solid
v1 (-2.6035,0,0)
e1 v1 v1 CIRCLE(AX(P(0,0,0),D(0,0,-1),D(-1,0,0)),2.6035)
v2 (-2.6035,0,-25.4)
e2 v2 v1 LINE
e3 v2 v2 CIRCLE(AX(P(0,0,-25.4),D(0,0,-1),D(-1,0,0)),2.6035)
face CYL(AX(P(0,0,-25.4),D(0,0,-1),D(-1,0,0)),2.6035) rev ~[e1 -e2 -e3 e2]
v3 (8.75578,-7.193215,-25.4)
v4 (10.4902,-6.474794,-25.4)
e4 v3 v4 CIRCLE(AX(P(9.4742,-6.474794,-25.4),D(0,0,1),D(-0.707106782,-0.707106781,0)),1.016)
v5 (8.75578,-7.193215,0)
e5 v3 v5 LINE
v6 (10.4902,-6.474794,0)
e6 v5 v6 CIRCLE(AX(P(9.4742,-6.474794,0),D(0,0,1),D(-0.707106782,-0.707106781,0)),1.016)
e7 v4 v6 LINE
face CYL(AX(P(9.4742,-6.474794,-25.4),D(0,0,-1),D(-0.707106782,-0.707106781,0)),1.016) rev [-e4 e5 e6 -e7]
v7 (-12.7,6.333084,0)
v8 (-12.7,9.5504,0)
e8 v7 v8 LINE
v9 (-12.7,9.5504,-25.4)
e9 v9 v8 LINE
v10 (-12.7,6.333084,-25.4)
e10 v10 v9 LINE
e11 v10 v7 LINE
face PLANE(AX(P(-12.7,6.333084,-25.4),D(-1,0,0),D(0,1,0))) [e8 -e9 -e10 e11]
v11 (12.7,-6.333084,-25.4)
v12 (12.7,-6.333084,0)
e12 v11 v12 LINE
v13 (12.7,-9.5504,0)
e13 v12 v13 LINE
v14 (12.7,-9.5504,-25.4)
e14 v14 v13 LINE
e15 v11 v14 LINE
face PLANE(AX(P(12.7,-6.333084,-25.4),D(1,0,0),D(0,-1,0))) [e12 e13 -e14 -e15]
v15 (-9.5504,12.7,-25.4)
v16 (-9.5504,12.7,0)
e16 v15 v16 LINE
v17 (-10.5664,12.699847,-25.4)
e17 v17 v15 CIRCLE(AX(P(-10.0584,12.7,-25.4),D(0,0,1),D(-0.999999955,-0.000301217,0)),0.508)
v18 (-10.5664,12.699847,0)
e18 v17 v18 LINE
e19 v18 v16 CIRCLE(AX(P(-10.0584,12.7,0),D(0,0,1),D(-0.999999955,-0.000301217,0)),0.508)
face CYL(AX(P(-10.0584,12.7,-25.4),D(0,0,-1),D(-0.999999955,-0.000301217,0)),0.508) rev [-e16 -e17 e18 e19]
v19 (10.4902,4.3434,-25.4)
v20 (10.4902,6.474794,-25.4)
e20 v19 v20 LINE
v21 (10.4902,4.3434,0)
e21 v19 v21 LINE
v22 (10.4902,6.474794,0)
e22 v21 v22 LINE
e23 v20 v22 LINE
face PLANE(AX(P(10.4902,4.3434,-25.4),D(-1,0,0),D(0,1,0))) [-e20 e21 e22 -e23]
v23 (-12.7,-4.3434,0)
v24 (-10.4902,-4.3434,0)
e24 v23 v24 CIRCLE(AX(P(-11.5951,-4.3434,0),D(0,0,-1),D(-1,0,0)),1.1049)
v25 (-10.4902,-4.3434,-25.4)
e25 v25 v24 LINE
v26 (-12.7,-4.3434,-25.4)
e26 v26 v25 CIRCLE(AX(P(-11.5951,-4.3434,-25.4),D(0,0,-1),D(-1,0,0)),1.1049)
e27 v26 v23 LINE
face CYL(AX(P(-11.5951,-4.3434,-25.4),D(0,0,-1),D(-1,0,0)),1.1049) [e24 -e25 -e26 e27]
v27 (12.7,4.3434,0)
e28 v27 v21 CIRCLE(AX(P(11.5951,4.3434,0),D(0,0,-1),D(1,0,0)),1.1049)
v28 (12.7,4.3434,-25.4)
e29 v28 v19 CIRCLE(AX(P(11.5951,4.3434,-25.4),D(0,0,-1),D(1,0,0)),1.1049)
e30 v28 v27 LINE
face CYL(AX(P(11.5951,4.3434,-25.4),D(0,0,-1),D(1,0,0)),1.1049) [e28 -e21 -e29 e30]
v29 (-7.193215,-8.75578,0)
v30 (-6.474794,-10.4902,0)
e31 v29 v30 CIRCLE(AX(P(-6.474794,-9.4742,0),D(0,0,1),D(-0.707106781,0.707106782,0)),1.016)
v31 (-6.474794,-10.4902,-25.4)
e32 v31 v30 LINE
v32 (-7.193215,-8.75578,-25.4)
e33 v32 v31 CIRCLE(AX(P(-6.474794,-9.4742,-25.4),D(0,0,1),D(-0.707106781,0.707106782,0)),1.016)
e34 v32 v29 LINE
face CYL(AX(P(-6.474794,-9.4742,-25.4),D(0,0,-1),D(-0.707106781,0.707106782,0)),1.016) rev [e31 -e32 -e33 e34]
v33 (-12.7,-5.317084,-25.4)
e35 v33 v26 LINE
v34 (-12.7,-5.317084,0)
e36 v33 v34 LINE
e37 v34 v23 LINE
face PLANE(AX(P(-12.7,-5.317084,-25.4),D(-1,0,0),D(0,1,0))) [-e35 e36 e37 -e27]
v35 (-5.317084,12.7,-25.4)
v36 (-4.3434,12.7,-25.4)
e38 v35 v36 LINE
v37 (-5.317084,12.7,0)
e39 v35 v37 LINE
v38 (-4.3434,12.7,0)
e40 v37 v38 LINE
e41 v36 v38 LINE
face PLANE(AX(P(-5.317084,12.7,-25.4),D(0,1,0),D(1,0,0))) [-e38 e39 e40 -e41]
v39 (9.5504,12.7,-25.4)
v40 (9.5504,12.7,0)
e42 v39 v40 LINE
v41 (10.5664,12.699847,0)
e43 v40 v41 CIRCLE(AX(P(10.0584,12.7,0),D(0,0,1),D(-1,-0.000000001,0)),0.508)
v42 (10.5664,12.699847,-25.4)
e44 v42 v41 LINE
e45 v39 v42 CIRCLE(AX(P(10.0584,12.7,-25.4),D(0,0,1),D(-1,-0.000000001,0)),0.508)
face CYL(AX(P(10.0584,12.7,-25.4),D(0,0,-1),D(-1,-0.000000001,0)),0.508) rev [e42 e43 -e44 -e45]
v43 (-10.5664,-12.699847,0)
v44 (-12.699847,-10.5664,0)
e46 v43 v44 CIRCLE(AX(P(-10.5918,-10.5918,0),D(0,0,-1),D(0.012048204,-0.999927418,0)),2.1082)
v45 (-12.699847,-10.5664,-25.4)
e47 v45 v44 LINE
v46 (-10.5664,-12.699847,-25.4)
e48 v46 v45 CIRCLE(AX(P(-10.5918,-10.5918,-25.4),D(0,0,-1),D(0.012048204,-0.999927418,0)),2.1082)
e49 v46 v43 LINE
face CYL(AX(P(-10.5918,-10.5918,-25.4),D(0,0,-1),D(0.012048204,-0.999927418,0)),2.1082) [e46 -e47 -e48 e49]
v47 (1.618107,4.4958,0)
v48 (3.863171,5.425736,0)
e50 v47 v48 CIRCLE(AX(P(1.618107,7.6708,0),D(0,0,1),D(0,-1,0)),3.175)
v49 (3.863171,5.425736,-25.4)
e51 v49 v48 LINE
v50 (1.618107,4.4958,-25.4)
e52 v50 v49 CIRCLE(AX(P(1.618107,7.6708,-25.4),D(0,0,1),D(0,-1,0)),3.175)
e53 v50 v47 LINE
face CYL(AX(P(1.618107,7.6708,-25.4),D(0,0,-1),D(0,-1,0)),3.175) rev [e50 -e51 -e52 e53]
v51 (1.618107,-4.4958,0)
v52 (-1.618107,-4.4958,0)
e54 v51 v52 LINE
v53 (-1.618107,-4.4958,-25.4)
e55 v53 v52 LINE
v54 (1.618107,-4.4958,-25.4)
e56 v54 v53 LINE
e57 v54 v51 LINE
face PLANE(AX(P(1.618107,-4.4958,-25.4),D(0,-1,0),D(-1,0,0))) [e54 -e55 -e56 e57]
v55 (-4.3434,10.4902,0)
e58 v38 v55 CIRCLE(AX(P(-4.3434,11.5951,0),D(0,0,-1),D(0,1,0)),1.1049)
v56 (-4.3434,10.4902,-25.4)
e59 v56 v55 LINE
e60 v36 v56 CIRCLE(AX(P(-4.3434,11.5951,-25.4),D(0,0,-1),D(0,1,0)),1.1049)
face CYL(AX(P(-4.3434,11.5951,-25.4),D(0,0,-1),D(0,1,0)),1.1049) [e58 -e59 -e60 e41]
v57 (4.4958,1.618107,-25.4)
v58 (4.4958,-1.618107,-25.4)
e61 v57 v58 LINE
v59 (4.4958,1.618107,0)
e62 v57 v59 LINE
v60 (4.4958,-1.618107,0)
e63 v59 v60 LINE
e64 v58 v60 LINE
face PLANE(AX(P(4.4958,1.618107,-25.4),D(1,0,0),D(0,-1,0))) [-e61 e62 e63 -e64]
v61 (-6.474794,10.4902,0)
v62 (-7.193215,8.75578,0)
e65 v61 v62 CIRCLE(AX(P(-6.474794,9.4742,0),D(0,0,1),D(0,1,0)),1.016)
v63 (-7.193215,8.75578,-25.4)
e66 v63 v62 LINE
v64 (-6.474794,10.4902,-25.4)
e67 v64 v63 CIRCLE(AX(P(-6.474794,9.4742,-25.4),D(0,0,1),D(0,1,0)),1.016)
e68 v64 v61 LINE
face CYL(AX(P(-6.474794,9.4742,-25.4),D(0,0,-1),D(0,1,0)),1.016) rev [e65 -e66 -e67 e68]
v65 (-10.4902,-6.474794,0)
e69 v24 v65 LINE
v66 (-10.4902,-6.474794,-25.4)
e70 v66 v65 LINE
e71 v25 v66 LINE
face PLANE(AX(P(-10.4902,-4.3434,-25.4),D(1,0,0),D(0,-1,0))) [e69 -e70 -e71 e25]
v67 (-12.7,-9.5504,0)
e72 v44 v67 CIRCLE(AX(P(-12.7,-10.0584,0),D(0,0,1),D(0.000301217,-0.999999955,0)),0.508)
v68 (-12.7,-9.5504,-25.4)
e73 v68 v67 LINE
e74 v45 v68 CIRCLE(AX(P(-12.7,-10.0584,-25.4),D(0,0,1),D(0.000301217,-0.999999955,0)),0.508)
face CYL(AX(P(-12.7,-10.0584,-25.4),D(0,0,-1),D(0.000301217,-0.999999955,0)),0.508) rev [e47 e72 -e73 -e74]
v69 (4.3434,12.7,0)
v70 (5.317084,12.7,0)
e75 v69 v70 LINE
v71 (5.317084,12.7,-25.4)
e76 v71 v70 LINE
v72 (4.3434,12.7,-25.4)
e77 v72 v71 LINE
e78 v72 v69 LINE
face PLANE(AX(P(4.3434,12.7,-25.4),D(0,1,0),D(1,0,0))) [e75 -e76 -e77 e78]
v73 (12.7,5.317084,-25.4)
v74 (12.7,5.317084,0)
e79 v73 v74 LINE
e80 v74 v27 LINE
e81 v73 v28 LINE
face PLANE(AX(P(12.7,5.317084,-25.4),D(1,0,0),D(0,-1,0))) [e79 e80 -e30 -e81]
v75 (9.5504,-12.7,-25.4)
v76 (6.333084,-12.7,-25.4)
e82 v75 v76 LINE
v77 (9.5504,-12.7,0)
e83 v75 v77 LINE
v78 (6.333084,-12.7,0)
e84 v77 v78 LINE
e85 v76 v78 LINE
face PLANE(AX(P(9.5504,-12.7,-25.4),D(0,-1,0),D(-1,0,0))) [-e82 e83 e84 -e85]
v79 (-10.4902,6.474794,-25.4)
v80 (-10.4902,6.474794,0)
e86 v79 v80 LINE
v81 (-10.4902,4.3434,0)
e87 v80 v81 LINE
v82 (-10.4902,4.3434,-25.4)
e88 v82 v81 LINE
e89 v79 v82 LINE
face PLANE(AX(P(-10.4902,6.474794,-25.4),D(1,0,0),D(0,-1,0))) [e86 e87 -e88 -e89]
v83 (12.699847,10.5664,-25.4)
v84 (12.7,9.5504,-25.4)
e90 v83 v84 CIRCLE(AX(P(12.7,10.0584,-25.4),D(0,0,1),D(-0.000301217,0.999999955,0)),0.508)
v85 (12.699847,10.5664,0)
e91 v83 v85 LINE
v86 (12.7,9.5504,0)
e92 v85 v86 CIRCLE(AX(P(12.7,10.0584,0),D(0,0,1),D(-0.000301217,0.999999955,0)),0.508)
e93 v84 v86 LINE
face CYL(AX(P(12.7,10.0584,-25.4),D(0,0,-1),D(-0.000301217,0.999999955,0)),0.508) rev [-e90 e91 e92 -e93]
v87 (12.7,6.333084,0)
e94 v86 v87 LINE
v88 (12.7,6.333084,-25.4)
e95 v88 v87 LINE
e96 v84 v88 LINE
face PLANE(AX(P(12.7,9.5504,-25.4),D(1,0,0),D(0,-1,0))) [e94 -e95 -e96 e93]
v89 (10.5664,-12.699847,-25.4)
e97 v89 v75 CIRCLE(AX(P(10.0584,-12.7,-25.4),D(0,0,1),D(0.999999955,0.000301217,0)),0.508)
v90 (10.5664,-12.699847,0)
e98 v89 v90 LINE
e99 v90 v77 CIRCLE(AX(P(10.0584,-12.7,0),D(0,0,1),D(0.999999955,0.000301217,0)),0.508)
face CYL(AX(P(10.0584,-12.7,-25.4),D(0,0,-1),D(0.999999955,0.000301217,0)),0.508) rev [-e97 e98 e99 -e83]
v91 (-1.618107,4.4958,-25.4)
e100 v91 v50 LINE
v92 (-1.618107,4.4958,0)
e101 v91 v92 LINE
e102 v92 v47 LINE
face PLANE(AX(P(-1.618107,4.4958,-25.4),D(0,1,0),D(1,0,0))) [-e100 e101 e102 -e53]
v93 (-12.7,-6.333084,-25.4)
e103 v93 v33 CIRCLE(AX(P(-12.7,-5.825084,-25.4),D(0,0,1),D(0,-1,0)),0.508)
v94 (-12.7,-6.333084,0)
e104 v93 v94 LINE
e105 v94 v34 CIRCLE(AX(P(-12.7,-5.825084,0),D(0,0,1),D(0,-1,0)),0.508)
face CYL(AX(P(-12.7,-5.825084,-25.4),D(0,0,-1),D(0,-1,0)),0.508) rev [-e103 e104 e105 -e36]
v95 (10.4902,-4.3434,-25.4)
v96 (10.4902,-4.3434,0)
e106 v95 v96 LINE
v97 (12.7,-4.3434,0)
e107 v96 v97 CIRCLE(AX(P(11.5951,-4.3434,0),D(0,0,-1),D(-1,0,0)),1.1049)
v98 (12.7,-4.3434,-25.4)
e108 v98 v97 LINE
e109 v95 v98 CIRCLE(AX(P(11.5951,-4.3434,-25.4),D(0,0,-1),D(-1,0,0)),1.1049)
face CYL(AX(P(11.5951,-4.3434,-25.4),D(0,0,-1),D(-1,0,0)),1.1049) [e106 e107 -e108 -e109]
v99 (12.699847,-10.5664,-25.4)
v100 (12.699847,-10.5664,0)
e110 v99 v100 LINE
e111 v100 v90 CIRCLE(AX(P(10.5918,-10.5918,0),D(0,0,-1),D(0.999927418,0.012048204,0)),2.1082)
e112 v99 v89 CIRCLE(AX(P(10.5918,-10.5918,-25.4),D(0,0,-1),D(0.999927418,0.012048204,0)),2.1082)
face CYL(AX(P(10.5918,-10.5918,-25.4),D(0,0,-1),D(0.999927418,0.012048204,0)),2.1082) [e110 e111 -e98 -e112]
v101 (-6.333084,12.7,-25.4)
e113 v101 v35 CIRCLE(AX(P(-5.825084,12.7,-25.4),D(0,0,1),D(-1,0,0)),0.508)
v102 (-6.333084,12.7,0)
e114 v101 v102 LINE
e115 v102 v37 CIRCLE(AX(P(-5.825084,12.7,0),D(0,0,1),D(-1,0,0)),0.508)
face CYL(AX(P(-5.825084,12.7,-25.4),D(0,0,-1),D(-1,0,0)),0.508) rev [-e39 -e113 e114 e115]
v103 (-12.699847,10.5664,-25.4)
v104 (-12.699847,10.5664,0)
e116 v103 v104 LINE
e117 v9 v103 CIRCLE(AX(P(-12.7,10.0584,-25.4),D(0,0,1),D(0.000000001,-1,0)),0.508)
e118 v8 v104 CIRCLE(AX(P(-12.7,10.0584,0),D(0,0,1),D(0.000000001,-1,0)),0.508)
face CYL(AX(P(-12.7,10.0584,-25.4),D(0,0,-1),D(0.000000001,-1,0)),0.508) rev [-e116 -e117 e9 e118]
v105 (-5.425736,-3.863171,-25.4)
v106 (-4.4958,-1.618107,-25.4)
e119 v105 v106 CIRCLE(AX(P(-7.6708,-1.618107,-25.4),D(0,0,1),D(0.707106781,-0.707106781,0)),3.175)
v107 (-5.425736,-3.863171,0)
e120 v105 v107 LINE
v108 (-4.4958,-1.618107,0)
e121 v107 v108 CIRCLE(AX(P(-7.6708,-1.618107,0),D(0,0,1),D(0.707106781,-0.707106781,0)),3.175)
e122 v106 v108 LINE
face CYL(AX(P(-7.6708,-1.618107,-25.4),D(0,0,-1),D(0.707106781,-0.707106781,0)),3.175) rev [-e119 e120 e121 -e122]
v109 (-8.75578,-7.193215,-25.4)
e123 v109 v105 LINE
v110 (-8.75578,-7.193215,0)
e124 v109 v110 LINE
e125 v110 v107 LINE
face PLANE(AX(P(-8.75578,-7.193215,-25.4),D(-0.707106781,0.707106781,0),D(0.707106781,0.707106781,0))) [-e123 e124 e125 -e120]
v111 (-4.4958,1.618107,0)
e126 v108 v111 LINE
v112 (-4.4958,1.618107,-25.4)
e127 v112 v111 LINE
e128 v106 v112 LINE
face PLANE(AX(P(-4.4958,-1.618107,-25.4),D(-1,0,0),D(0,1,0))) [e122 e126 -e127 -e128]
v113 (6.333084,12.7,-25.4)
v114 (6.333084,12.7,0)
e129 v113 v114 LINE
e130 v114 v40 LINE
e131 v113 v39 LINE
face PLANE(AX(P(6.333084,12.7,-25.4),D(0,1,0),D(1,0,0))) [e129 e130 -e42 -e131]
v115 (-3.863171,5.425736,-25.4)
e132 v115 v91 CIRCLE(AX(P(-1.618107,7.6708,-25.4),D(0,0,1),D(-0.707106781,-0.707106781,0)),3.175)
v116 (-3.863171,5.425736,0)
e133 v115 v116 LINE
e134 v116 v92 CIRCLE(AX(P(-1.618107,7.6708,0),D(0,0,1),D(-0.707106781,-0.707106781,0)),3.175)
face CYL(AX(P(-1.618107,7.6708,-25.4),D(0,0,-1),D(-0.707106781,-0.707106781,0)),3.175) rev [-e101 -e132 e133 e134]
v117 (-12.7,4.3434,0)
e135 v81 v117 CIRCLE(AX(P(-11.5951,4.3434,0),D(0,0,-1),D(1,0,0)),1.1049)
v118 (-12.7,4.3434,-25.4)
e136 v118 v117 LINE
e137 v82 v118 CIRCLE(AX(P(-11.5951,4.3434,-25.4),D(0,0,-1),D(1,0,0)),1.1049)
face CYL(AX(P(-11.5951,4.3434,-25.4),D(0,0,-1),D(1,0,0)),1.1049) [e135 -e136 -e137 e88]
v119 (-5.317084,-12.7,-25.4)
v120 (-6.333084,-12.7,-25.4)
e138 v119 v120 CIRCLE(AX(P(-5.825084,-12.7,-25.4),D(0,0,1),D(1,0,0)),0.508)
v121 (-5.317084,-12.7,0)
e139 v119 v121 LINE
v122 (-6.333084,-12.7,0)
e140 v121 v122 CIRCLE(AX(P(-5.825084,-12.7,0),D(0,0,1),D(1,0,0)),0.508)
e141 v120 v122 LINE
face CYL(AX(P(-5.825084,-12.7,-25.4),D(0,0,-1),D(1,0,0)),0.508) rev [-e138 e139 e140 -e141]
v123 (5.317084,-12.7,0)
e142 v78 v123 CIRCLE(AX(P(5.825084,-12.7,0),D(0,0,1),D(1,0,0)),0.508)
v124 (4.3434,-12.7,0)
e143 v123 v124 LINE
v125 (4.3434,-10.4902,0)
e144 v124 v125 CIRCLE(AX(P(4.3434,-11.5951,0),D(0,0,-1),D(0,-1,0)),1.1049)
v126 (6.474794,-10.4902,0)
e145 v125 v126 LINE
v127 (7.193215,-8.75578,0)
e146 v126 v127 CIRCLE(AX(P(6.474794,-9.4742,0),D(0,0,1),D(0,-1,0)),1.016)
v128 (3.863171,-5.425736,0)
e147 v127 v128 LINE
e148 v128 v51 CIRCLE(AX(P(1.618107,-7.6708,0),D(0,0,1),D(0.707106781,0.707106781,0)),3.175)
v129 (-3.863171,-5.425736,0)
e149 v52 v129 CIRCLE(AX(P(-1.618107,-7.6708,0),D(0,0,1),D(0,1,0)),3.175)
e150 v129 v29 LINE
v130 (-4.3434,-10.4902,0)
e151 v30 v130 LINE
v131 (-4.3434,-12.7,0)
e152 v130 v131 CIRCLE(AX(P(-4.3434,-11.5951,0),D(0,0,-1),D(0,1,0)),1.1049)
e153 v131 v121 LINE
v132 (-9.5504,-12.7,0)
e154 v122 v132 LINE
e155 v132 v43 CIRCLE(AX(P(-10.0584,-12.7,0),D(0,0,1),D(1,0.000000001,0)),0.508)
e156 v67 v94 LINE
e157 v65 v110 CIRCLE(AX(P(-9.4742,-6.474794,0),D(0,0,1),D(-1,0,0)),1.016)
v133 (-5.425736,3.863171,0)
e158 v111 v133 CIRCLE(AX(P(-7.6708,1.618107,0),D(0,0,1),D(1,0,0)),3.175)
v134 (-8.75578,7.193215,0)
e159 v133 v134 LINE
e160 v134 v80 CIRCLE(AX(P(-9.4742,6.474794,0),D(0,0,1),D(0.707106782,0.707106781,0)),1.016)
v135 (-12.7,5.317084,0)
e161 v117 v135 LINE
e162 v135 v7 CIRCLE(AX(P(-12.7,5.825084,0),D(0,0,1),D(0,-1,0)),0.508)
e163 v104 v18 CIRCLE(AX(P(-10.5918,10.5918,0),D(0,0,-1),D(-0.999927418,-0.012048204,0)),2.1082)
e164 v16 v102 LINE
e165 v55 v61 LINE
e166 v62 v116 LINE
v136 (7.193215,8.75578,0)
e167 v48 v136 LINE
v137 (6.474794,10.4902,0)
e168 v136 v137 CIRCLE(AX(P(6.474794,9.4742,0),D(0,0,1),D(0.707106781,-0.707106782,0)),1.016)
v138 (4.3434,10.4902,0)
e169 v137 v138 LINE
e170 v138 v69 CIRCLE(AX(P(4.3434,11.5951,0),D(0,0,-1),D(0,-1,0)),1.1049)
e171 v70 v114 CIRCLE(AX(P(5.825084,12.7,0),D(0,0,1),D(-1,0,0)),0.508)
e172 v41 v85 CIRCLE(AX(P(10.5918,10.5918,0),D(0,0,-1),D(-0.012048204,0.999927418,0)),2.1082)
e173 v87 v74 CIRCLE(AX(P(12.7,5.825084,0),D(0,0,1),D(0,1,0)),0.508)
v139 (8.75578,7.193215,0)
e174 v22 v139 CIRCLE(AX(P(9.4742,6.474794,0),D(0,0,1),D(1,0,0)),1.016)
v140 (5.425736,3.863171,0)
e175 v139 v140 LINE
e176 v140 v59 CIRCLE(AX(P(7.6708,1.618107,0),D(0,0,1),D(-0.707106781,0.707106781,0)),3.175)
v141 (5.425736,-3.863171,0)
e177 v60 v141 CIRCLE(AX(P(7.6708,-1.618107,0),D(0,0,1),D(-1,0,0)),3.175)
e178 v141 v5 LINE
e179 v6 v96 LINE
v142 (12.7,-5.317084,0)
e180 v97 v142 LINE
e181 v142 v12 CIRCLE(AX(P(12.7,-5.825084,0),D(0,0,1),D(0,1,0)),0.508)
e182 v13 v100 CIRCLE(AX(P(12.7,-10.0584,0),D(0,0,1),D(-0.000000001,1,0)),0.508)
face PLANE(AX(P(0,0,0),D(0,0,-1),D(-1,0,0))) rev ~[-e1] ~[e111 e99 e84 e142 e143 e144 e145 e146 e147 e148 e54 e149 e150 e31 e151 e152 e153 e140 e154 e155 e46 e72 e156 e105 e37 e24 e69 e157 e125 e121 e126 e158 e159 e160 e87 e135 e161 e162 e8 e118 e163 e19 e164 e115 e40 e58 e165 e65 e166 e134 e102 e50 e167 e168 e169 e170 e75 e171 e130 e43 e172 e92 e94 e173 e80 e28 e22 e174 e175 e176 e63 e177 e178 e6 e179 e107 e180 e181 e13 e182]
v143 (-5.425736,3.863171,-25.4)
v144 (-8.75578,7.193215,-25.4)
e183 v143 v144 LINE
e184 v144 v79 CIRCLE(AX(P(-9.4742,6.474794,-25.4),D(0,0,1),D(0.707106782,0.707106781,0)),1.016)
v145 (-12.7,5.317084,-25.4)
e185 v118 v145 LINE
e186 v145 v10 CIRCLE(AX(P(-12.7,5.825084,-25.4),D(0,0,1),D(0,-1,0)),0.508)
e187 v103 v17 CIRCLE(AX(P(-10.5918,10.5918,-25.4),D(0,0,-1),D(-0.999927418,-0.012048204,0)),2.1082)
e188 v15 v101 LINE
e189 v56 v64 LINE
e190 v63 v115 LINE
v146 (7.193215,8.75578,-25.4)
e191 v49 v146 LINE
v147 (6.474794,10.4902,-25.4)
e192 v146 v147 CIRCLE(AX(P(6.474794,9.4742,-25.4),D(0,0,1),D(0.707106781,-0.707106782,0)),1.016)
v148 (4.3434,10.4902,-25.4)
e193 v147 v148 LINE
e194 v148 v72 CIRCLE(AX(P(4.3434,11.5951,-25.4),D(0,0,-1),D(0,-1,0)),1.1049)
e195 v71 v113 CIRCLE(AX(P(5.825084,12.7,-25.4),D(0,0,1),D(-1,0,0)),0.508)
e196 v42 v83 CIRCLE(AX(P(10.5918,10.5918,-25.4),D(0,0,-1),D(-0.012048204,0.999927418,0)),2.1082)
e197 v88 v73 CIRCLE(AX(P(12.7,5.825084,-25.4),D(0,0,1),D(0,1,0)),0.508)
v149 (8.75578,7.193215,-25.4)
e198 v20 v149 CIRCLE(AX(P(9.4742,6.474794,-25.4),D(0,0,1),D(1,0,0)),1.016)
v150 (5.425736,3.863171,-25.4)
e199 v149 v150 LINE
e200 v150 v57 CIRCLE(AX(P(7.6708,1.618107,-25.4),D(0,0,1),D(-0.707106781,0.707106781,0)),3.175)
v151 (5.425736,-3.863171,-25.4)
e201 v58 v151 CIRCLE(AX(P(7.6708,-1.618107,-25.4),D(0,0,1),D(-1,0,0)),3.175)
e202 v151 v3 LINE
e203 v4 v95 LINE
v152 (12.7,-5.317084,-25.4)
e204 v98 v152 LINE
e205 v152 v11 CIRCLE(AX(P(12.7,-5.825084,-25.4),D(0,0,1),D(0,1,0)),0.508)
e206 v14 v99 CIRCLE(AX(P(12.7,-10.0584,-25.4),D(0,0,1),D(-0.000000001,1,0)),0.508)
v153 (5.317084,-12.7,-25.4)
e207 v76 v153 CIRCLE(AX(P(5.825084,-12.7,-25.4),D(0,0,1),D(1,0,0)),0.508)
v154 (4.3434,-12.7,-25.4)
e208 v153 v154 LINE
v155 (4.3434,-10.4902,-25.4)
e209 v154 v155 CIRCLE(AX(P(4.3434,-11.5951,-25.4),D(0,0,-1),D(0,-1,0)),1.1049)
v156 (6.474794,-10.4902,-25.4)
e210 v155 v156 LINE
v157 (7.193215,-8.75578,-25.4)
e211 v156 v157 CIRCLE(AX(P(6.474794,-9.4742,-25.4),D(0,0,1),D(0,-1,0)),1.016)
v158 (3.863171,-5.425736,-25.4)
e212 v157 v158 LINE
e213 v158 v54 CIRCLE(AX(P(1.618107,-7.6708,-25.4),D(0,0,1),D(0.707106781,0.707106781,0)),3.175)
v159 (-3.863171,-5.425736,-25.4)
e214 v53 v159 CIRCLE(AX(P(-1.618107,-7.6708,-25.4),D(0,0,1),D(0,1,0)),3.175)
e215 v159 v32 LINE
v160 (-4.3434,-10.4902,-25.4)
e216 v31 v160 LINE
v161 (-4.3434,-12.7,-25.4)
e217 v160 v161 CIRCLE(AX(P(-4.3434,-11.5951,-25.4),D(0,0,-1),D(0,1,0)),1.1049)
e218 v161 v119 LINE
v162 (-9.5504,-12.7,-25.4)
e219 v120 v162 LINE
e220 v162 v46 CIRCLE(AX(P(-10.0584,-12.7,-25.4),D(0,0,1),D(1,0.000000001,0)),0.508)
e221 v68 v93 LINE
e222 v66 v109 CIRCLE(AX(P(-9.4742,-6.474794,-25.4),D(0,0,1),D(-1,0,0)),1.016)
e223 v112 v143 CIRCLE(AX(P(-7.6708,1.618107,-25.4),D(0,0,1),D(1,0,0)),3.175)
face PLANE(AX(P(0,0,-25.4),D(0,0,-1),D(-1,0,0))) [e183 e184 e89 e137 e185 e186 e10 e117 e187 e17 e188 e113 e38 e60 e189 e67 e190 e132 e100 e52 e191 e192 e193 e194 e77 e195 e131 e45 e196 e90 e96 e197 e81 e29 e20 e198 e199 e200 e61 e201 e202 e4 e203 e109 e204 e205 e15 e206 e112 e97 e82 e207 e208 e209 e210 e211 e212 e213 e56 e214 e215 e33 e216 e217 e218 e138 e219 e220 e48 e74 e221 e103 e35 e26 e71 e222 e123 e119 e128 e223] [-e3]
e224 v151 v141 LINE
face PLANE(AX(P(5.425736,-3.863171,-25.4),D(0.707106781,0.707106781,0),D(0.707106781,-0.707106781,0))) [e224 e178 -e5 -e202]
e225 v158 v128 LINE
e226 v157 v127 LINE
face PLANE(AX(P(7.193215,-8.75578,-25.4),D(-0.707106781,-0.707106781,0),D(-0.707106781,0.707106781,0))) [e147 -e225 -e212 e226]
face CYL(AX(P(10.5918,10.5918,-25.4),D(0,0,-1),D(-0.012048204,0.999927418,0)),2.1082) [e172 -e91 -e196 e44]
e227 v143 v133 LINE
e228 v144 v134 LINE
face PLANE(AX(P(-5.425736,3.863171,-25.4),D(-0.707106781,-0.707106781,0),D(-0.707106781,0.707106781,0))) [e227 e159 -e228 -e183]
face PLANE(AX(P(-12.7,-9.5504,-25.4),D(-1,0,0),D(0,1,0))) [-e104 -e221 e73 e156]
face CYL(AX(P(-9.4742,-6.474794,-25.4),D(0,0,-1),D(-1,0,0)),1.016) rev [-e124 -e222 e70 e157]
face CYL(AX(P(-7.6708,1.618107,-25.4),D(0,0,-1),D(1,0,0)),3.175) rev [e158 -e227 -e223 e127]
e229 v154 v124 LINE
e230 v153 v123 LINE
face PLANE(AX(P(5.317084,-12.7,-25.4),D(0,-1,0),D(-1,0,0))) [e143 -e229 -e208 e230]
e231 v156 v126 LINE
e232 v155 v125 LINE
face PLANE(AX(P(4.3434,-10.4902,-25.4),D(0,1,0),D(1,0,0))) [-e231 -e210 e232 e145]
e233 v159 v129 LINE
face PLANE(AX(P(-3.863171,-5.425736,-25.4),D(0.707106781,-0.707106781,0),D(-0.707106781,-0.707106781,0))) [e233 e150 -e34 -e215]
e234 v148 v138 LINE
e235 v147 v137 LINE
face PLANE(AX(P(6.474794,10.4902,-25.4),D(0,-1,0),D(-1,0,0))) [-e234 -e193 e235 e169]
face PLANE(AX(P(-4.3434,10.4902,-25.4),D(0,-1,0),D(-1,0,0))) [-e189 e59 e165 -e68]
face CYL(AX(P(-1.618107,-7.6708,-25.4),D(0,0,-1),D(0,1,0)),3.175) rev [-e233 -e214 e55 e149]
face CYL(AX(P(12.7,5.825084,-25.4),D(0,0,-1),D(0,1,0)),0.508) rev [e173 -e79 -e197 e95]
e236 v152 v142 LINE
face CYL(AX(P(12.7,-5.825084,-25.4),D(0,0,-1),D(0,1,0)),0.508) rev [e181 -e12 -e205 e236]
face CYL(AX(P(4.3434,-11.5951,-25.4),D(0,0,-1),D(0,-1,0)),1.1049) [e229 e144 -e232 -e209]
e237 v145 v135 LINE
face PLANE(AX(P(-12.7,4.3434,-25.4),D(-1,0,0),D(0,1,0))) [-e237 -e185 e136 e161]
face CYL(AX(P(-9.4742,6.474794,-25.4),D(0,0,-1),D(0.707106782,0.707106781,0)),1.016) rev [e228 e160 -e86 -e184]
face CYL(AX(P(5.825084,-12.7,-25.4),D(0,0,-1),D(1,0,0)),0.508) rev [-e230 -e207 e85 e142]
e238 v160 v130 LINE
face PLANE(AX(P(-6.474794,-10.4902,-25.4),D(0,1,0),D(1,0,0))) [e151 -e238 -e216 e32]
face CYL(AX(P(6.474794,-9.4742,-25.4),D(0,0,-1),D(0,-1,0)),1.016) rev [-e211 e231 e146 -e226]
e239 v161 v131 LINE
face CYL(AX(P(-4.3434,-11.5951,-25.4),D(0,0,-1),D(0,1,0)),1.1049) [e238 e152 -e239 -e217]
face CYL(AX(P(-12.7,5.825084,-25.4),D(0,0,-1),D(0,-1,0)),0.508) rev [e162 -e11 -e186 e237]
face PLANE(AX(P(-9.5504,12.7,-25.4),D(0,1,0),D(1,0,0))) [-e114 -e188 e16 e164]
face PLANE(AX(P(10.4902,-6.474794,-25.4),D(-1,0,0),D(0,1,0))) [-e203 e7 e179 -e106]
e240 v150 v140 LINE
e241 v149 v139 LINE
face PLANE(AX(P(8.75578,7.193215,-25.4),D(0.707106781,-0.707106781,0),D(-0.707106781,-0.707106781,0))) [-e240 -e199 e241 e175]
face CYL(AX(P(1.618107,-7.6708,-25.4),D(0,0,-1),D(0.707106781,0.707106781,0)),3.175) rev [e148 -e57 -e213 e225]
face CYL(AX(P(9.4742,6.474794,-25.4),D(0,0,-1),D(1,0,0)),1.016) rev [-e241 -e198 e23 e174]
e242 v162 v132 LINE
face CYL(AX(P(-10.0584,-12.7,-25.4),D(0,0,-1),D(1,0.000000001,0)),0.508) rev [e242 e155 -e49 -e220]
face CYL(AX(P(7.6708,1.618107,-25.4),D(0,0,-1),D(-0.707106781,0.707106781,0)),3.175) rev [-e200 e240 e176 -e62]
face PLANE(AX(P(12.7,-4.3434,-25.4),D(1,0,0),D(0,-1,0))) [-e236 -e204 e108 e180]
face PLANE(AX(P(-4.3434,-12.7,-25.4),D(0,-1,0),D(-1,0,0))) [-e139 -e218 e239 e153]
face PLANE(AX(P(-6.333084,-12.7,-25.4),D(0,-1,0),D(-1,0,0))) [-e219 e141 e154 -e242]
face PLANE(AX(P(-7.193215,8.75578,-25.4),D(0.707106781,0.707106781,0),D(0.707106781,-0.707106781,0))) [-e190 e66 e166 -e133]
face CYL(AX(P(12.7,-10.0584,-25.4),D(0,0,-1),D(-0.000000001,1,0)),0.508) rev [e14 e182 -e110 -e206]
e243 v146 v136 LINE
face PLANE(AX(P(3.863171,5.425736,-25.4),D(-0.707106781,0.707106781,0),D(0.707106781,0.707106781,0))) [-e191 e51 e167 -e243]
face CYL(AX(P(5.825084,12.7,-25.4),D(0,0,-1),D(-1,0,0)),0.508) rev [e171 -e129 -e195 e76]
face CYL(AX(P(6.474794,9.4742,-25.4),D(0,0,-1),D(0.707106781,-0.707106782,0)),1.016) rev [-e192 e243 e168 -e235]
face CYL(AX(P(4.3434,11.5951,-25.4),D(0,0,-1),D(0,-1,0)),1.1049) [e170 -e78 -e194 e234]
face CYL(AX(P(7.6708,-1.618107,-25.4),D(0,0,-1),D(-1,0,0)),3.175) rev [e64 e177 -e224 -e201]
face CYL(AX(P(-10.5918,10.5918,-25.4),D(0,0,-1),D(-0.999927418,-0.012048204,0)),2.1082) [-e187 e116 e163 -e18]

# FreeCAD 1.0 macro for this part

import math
import FreeCAD as App
import Part
import Sketcher
Q = App.Units.Quantity

doc = App.newDocument("Part")
params = doc.addObject("Spreadsheet::Sheet", "Params")
for row, (alias, value) in enumerate([
    ("sketch1_radius", "0.02 in"),
    ("sketch1_radius2", "0.04 in"),
    ("sketch1_diameter", "0.205 in"),
    ("sketch1_radius3", "0.125 in"),
    ("sketch1_radius4", "0.083 in"),
    ("pad1_length", "1 in"),
], start=1):
    params.set(f"A{row}", alias)
    params.set(f"B{row}", "=" + value)
    params.setAlias(f"B{row}", alias)

body = doc.addObject("PartDesign::Body", "Body")

sketch1 = doc.addObject("Sketcher::SketchObject", "Sketch")
body.addObject(sketch1)
sketch1.AttachmentSupport = (doc.XY_Plane, [""])
sketch1.MapMode = "FlatFace"
sketch1.AttachmentOffset = App.Placement(App.Vector(0, 0, -1 * 25.4), App.Rotation())
sketch1.addGeometry([
    Part.LineSegment(App.Vector(-12.7, -9.6, 0), App.Vector(-12.7, -6.3, 0)),
    Part.ArcOfCircle(Part.Circle(App.Vector(-12.7, -5.8, 0), App.Vector(0, 0, 1), 0.5), math.radians(-90), math.radians(90)),
    Part.LineSegment(App.Vector(-12.7, -5.3, 0), App.Vector(-12.7, -4.3, 0)),
    Part.ArcOfCircle(Part.Circle(App.Vector(-11.6, -4.3, 0), App.Vector(0, 0, 1), 1.1), math.radians(0), math.radians(180)),
    Part.LineSegment(App.Vector(-10.5, -4.3, 0), App.Vector(-10.5, -6.5, 0)),
    Part.ArcOfCircle(Part.Circle(App.Vector(-9.5, -6.5, 0), App.Vector(0, 0, 1), 1), math.radians(180), math.radians(315)),
    Part.LineSegment(App.Vector(-8.8, -7.2, 0), App.Vector(-5.4, -3.9, 0)),
    Part.ArcOfCircle(Part.Circle(App.Vector(-7.7, -1.6, 0), App.Vector(0, 0, 1), 3.2), math.radians(-45), math.radians(0)),
    Part.LineSegment(App.Vector(-4.5, -1.6, 0), App.Vector(-4.5, 1.6, 0)),
    Part.ArcOfCircle(Part.Circle(App.Vector(-7.7, 1.6, 0), App.Vector(0, 0, 1), 3.2), math.radians(0), math.radians(45)),
    Part.LineSegment(App.Vector(-5.4, 3.9, 0), App.Vector(-8.8, 7.2, 0)),
    Part.ArcOfCircle(Part.Circle(App.Vector(-9.5, 6.5, 0), App.Vector(0, 0, 1), 1), math.radians(45), math.radians(180)),
    Part.LineSegment(App.Vector(-10.5, 6.5, 0), App.Vector(-10.5, 4.3, 0)),
    Part.ArcOfCircle(Part.Circle(App.Vector(-11.6, 4.3, 0), App.Vector(0, 0, 1), 1.1), math.radians(180), math.radians(360)),
    Part.LineSegment(App.Vector(-12.7, 4.3, 0), App.Vector(-12.7, 5.3, 0)),
    Part.ArcOfCircle(Part.Circle(App.Vector(-12.7, 5.8, 0), App.Vector(0, 0, 1), 0.5), math.radians(-90), math.radians(90)),
    Part.LineSegment(App.Vector(-12.7, 6.3, 0), App.Vector(-12.7, 9.6, 0)),
    Part.ArcOfCircle(Part.Circle(App.Vector(-12.7, 10.1, 0), App.Vector(0, 0, 1), 0.5), math.radians(-90), math.radians(90)),
    Part.ArcOfCircle(Part.Circle(App.Vector(-10.6, 10.6, 0), App.Vector(0, 0, 1), 2.1), math.radians(89), math.radians(181)),
    Part.ArcOfCircle(Part.Circle(App.Vector(-10.1, 12.7, 0), App.Vector(0, 0, 1), 0.5), math.radians(-180), math.radians(0)),
    Part.LineSegment(App.Vector(-9.6, 12.7, 0), App.Vector(-6.3, 12.7, 0)),
    Part.ArcOfCircle(Part.Circle(App.Vector(-5.8, 12.7, 0), App.Vector(0, 0, 1), 0.5), math.radians(180), math.radians(360)),
    Part.LineSegment(App.Vector(-5.3, 12.7, 0), App.Vector(-4.3, 12.7, 0)),
    Part.ArcOfCircle(Part.Circle(App.Vector(-4.3, 11.6, 0), App.Vector(0, 0, 1), 1.1), math.radians(-90), math.radians(90)),
    Part.LineSegment(App.Vector(-4.3, 10.5, 0), App.Vector(-6.5, 10.5, 0)),
    Part.ArcOfCircle(Part.Circle(App.Vector(-6.5, 9.5, 0), App.Vector(0, 0, 1), 1), math.radians(90), math.radians(225)),
    Part.LineSegment(App.Vector(-7.2, 8.8, 0), App.Vector(-3.9, 5.4, 0)),
    Part.ArcOfCircle(Part.Circle(App.Vector(-1.6, 7.7, 0), App.Vector(0, 0, 1), 3.2), math.radians(-135), math.radians(-90)),
    Part.LineSegment(App.Vector(-1.6, 4.5, 0), App.Vector(1.6, 4.5, 0)),
    Part.ArcOfCircle(Part.Circle(App.Vector(1.6, 7.7, 0), App.Vector(0, 0, 1), 3.2), math.radians(-90), math.radians(-45)),
    Part.LineSegment(App.Vector(3.9, 5.4, 0), App.Vector(7.2, 8.8, 0)),
    Part.ArcOfCircle(Part.Circle(App.Vector(6.5, 9.5, 0), App.Vector(0, 0, 1), 1), math.radians(-45), math.radians(90)),
    Part.LineSegment(App.Vector(6.5, 10.5, 0), App.Vector(4.3, 10.5, 0)),
    Part.ArcOfCircle(Part.Circle(App.Vector(4.3, 11.6, 0), App.Vector(0, 0, 1), 1.1), math.radians(90), math.radians(270)),
    Part.LineSegment(App.Vector(4.3, 12.7, 0), App.Vector(5.3, 12.7, 0)),
    Part.ArcOfCircle(Part.Circle(App.Vector(5.8, 12.7, 0), App.Vector(0, 0, 1), 0.5), math.radians(180), math.radians(360)),
    Part.LineSegment(App.Vector(6.3, 12.7, 0), App.Vector(9.6, 12.7, 0)),
    Part.ArcOfCircle(Part.Circle(App.Vector(10.1, 12.7, 0), App.Vector(0, 0, 1), 0.5), math.radians(180), math.radians(360)),
    Part.ArcOfCircle(Part.Circle(App.Vector(10.6, 10.6, 0), App.Vector(0, 0, 1), 2.1), math.radians(-1), math.radians(91)),
    Part.ArcOfCircle(Part.Circle(App.Vector(12.7, 10.1, 0), App.Vector(0, 0, 1), 0.5), math.radians(90), math.radians(270)),
    Part.LineSegment(App.Vector(12.7, 9.6, 0), App.Vector(12.7, 6.3, 0)),
    Part.ArcOfCircle(Part.Circle(App.Vector(12.7, 5.8, 0), App.Vector(0, 0, 1), 0.5), math.radians(90), math.radians(270)),
    Part.LineSegment(App.Vector(12.7, 5.3, 0), App.Vector(12.7, 4.3, 0)),
    Part.ArcOfCircle(Part.Circle(App.Vector(11.6, 4.3, 0), App.Vector(0, 0, 1), 1.1), math.radians(180), math.radians(360)),
    Part.LineSegment(App.Vector(10.5, 4.3, 0), App.Vector(10.5, 6.5, 0)),
    Part.ArcOfCircle(Part.Circle(App.Vector(9.5, 6.5, 0), App.Vector(0, 0, 1), 1), math.radians(0), math.radians(135)),
    Part.LineSegment(App.Vector(8.8, 7.2, 0), App.Vector(5.4, 3.9, 0)),
    Part.ArcOfCircle(Part.Circle(App.Vector(7.7, 1.6, 0), App.Vector(0, 0, 1), 3.2), math.radians(135), math.radians(180)),
    Part.LineSegment(App.Vector(4.5, 1.6, 0), App.Vector(4.5, -1.6, 0)),
    Part.ArcOfCircle(Part.Circle(App.Vector(7.7, -1.6, 0), App.Vector(0, 0, 1), 3.2), math.radians(180), math.radians(225)),
    Part.LineSegment(App.Vector(5.4, -3.9, 0), App.Vector(8.8, -7.2, 0)),
    Part.ArcOfCircle(Part.Circle(App.Vector(9.5, -6.5, 0), App.Vector(0, 0, 1), 1), math.radians(-135), math.radians(0)),
    Part.LineSegment(App.Vector(10.5, -6.5, 0), App.Vector(10.5, -4.3, 0)),
    Part.ArcOfCircle(Part.Circle(App.Vector(11.6, -4.3, 0), App.Vector(0, 0, 1), 1.1), math.radians(0), math.radians(180)),
    Part.LineSegment(App.Vector(12.7, -4.3, 0), App.Vector(12.7, -5.3, 0)),
    Part.ArcOfCircle(Part.Circle(App.Vector(12.7, -5.8, 0), App.Vector(0, 0, 1), 0.5), math.radians(90), math.radians(270)),
    Part.LineSegment(App.Vector(12.7, -6.3, 0), App.Vector(12.7, -9.6, 0)),
    Part.ArcOfCircle(Part.Circle(App.Vector(12.7, -10.1, 0), App.Vector(0, 0, 1), 0.5), math.radians(90), math.radians(270)),
    Part.ArcOfCircle(Part.Circle(App.Vector(10.6, -10.6, 0), App.Vector(0, 0, 1), 2.1), math.radians(-91), math.radians(1)),
    Part.ArcOfCircle(Part.Circle(App.Vector(10.1, -12.7, 0), App.Vector(0, 0, 1), 0.5), math.radians(0), math.radians(180)),
    Part.LineSegment(App.Vector(9.6, -12.7, 0), App.Vector(6.3, -12.7, 0)),
    Part.ArcOfCircle(Part.Circle(App.Vector(5.8, -12.7, 0), App.Vector(0, 0, 1), 0.5), math.radians(0), math.radians(180)),
    Part.LineSegment(App.Vector(5.3, -12.7, 0), App.Vector(4.3, -12.7, 0)),
    Part.ArcOfCircle(Part.Circle(App.Vector(4.3, -11.6, 0), App.Vector(0, 0, 1), 1.1), math.radians(90), math.radians(270)),
    Part.LineSegment(App.Vector(4.3, -10.5, 0), App.Vector(6.5, -10.5, 0)),
    Part.ArcOfCircle(Part.Circle(App.Vector(6.5, -9.5, 0), App.Vector(0, 0, 1), 1), math.radians(-90), math.radians(45)),
    Part.LineSegment(App.Vector(7.2, -8.8, 0), App.Vector(3.9, -5.4, 0)),
    Part.ArcOfCircle(Part.Circle(App.Vector(1.6, -7.7, 0), App.Vector(0, 0, 1), 3.2), math.radians(45), math.radians(90)),
    Part.LineSegment(App.Vector(1.6, -4.5, 0), App.Vector(-1.6, -4.5, 0)),
    Part.ArcOfCircle(Part.Circle(App.Vector(-1.6, -7.7, 0), App.Vector(0, 0, 1), 3.2), math.radians(90), math.radians(135)),
    Part.LineSegment(App.Vector(-3.9, -5.4, 0), App.Vector(-7.2, -8.8, 0)),
    Part.ArcOfCircle(Part.Circle(App.Vector(-6.5, -9.5, 0), App.Vector(0, 0, 1), 1), math.radians(135), math.radians(270)),
    Part.LineSegment(App.Vector(-6.5, -10.5, 0), App.Vector(-4.3, -10.5, 0)),
    Part.ArcOfCircle(Part.Circle(App.Vector(-4.3, -11.6, 0), App.Vector(0, 0, 1), 1.1), math.radians(-90), math.radians(90)),
    Part.LineSegment(App.Vector(-4.3, -12.7, 0), App.Vector(-5.3, -12.7, 0)),
    Part.ArcOfCircle(Part.Circle(App.Vector(-5.8, -12.7, 0), App.Vector(0, 0, 1), 0.5), math.radians(0), math.radians(180)),
    Part.LineSegment(App.Vector(-6.3, -12.7, 0), App.Vector(-9.6, -12.7, 0)),
    Part.ArcOfCircle(Part.Circle(App.Vector(-10.1, -12.7, 0), App.Vector(0, 0, 1), 0.5), math.radians(0), math.radians(180)),
    Part.ArcOfCircle(Part.Circle(App.Vector(-10.6, -10.6, 0), App.Vector(0, 0, 1), 2.1), math.radians(179), math.radians(271)),
    Part.ArcOfCircle(Part.Circle(App.Vector(-12.7, -10.1, 0), App.Vector(0, 0, 1), 0.5), math.radians(-90), math.radians(90)),
    Part.Circle(App.Vector(0, 0, 0), App.Vector(0, 0, 1), 2.6),
], False)
sketch1.addConstraint([
    Sketcher.Constraint("Coincident", 0, 2, 1, 1),
    Sketcher.Constraint("Coincident", 1, 2, 2, 1),
    Sketcher.Constraint("Tangent", 2, 2, 3, 2),
    Sketcher.Constraint("Tangent", 3, 1, 4, 1),
    Sketcher.Constraint("Tangent", 4, 2, 5, 1),
    Sketcher.Constraint("Tangent", 5, 2, 6, 1),
    Sketcher.Constraint("Tangent", 6, 2, 7, 1),
    Sketcher.Constraint("Tangent", 7, 2, 8, 1),
    Sketcher.Constraint("Tangent", 8, 2, 9, 1),
    Sketcher.Constraint("Tangent", 9, 2, 10, 1),
    Sketcher.Constraint("Tangent", 10, 2, 11, 1),
    Sketcher.Constraint("Tangent", 11, 2, 12, 1),
    Sketcher.Constraint("Tangent", 12, 2, 13, 2),
    Sketcher.Constraint("Tangent", 13, 1, 14, 1),
    Sketcher.Constraint("Coincident", 14, 2, 15, 1),
    Sketcher.Constraint("Coincident", 15, 2, 16, 1),
    Sketcher.Constraint("Coincident", 16, 2, 17, 1),
    Sketcher.Constraint("Coincident", 17, 2, 18, 2),
    Sketcher.Constraint("Coincident", 18, 1, 19, 1),
    Sketcher.Constraint("Coincident", 19, 2, 20, 1),
    Sketcher.Constraint("Coincident", 20, 2, 21, 1),
    Sketcher.Constraint("Coincident", 21, 2, 22, 1),
    Sketcher.Constraint("Tangent", 22, 2, 23, 2),
    Sketcher.Constraint("Tangent", 23, 1, 24, 1),
    Sketcher.Constraint("Tangent", 24, 2, 25, 1),
    Sketcher.Constraint("Tangent", 25, 2, 26, 1),
    Sketcher.Constraint("Tangent", 26, 2, 27, 1),
    Sketcher.Constraint("Tangent", 27, 2, 28, 1),
    Sketcher.Constraint("Tangent", 28, 2, 29, 1),
    Sketcher.Constraint("Tangent", 29, 2, 30, 1),
    Sketcher.Constraint("Tangent", 30, 2, 31, 1),
    Sketcher.Constraint("Tangent", 31, 2, 32, 1),
    Sketcher.Constraint("Tangent", 32, 2, 33, 2),
    Sketcher.Constraint("Tangent", 33, 1, 34, 1),
    Sketcher.Constraint("Coincident", 34, 2, 35, 1),
    Sketcher.Constraint("Coincident", 35, 2, 36, 1),
    Sketcher.Constraint("Coincident", 36, 2, 37, 1),
    Sketcher.Constraint("Coincident", 37, 2, 38, 2),
    Sketcher.Constraint("Coincident", 38, 1, 39, 1),
    Sketcher.Constraint("Coincident", 39, 2, 40, 1),
    Sketcher.Constraint("Coincident", 40, 2, 41, 1),
    Sketcher.Constraint("Coincident", 41, 2, 42, 1),
    Sketcher.Constraint("Tangent", 42, 2, 43, 2),
    Sketcher.Constraint("Tangent", 43, 1, 44, 1),
    Sketcher.Constraint("Tangent", 44, 2, 45, 1),
    Sketcher.Constraint("Tangent", 45, 2, 46, 1),
    Sketcher.Constraint("Tangent", 46, 2, 47, 1),
    Sketcher.Constraint("Tangent", 47, 2, 48, 1),
    Sketcher.Constraint("Tangent", 48, 2, 49, 1),
    Sketcher.Constraint("Tangent", 49, 2, 50, 1),
    Sketcher.Constraint("Tangent", 50, 2, 51, 1),
    Sketcher.Constraint("Tangent", 51, 2, 52, 1),
    Sketcher.Constraint("Tangent", 52, 2, 53, 2),
    Sketcher.Constraint("Tangent", 53, 1, 54, 1),
    Sketcher.Constraint("Coincident", 54, 2, 55, 1),
    Sketcher.Constraint("Coincident", 55, 2, 56, 1),
    Sketcher.Constraint("Coincident", 56, 2, 57, 1),
    Sketcher.Constraint("Coincident", 57, 2, 58, 2),
    Sketcher.Constraint("Coincident", 58, 1, 59, 1),
    Sketcher.Constraint("Coincident", 59, 2, 60, 1),
    Sketcher.Constraint("Coincident", 60, 2, 61, 1),
    Sketcher.Constraint("Coincident", 61, 2, 62, 1),
    Sketcher.Constraint("Tangent", 62, 2, 63, 2),
    Sketcher.Constraint("Tangent", 63, 1, 64, 1),
    Sketcher.Constraint("Tangent", 64, 2, 65, 1),
    Sketcher.Constraint("Tangent", 65, 2, 66, 1),
    Sketcher.Constraint("Tangent", 66, 2, 67, 1),
    Sketcher.Constraint("Tangent", 67, 2, 68, 1),
    Sketcher.Constraint("Tangent", 68, 2, 69, 1),
    Sketcher.Constraint("Tangent", 69, 2, 70, 1),
    Sketcher.Constraint("Tangent", 70, 2, 71, 1),
    Sketcher.Constraint("Tangent", 71, 2, 72, 1),
    Sketcher.Constraint("Tangent", 72, 2, 73, 2),
    Sketcher.Constraint("Tangent", 73, 1, 74, 1),
    Sketcher.Constraint("Coincident", 74, 2, 75, 1),
    Sketcher.Constraint("Coincident", 75, 2, 76, 1),
    Sketcher.Constraint("Coincident", 76, 2, 77, 1),
    Sketcher.Constraint("Coincident", 77, 2, 78, 2),
    Sketcher.Constraint("Coincident", 78, 1, 79, 1),
    Sketcher.Constraint("Coincident", 79, 2, 0, 1),
    Sketcher.Constraint("Vertical", 0),
    Sketcher.Constraint("Vertical", 2),
    Sketcher.Constraint("Vertical", 4),
    Sketcher.Constraint("Vertical", 8),
    Sketcher.Constraint("Vertical", 12),
    Sketcher.Constraint("Vertical", 14),
    Sketcher.Constraint("Vertical", 16),
    Sketcher.Constraint("Horizontal", 20),
    Sketcher.Constraint("Horizontal", 22),
    Sketcher.Constraint("Horizontal", 24),
    Sketcher.Constraint("Horizontal", 28),
    Sketcher.Constraint("Horizontal", 32),
    Sketcher.Constraint("Horizontal", 34),
    Sketcher.Constraint("Horizontal", 36),
    Sketcher.Constraint("Vertical", 40),
    Sketcher.Constraint("Vertical", 42),
    Sketcher.Constraint("Vertical", 44),
    Sketcher.Constraint("Vertical", 48),
    Sketcher.Constraint("Vertical", 52),
    Sketcher.Constraint("Vertical", 54),
    Sketcher.Constraint("Vertical", 56),
    Sketcher.Constraint("Horizontal", 60),
    Sketcher.Constraint("Horizontal", 62),
    Sketcher.Constraint("Horizontal", 64),
    Sketcher.Constraint("Horizontal", 68),
    Sketcher.Constraint("Horizontal", 72),
    Sketcher.Constraint("Horizontal", 74),
    Sketcher.Constraint("Horizontal", 76),
    Sketcher.Constraint("Coincident", 80, 3, -1, 1),
    Sketcher.Constraint("Equal", 7, 9),
    Sketcher.Constraint("Equal", 5, 11),
    Sketcher.Constraint("Equal", 3, 13),
    Sketcher.Constraint("Equal", 1, 15),
    Sketcher.Constraint("Equal", 15, 17),
    Sketcher.Constraint("Equal", 17, 19),
    Sketcher.Constraint("Equal", 19, 21),
    Sketcher.Constraint("Equal", 13, 23),
    Sketcher.Constraint("Equal", 11, 25),
    Sketcher.Constraint("Equal", 9, 27),
    Sketcher.Constraint("Equal", 27, 29),
    Sketcher.Constraint("Equal", 25, 31),
    Sketcher.Constraint("Equal", 23, 33),
    Sketcher.Constraint("Equal", 21, 35),
    Sketcher.Constraint("Equal", 35, 37),
    Sketcher.Constraint("Equal", 18, 38),
    Sketcher.Constraint("Equal", 37, 39),
    Sketcher.Constraint("Equal", 39, 41),
    Sketcher.Constraint("Equal", 33, 43),
    Sketcher.Constraint("Equal", 31, 45),
    Sketcher.Constraint("Equal", 29, 47),
    Sketcher.Constraint("Equal", 47, 49),
    Sketcher.Constraint("Equal", 45, 51),
    Sketcher.Constraint("Equal", 43, 53),
    Sketcher.Constraint("Equal", 41, 55),
    Sketcher.Constraint("Equal", 55, 57),
    Sketcher.Constraint("Equal", 38, 58),
    Sketcher.Constraint("Equal", 57, 59),
    Sketcher.Constraint("Equal", 59, 61),
    Sketcher.Constraint("Equal", 53, 63),
    Sketcher.Constraint("Equal", 51, 65),
    Sketcher.Constraint("Equal", 49, 67),
    Sketcher.Constraint("Equal", 67, 69),
    Sketcher.Constraint("Equal", 65, 71),
    Sketcher.Constraint("Equal", 63, 73),
    Sketcher.Constraint("Equal", 61, 75),
    Sketcher.Constraint("Equal", 75, 77),
    Sketcher.Constraint("Equal", 58, 78),
    Sketcher.Constraint("Equal", 77, 79),
    Sketcher.Constraint("Symmetric", 1, 3, 41, 3, -1, 1),
    Sketcher.Constraint("Symmetric", 3, 3, 43, 3, -1, 1),
    Sketcher.Constraint("Symmetric", 7, 3, 47, 3, -1, 1),
    Sketcher.Constraint("Symmetric", 11, 3, 51, 3, -1, 1),
    Sketcher.Constraint("Symmetric", 15, 3, 55, 3, -1, 1),
    Sketcher.Constraint("Symmetric", 17, 3, 57, 3, -1, 1),
    Sketcher.Constraint("Symmetric", 18, 3, 58, 3, -1, 1),
    Sketcher.Constraint("Symmetric", 19, 3, 59, 3, -1, 1),
    Sketcher.Constraint("Symmetric", 21, 3, 61, 3, -1, 1),
    Sketcher.Constraint("Symmetric", 23, 3, 63, 3, -1, 1),
    Sketcher.Constraint("Symmetric", 27, 3, 67, 3, -1, 1),
    Sketcher.Constraint("Symmetric", 31, 3, 71, 3, -1, 1),
    Sketcher.Constraint("Symmetric", 35, 3, 75, 3, -1, 1),
    Sketcher.Constraint("Symmetric", 37, 3, 77, 3, -1, 1),
    Sketcher.Constraint("Symmetric", 38, 3, 78, 3, -1, 1),
    Sketcher.Constraint("Symmetric", 39, 3, 79, 3, -1, 1),
    Sketcher.Constraint("Symmetric", 25, 3, 31, 3, -2),
    Sketcher.Constraint("Symmetric", 21, 3, 35, 3, -2),
    Sketcher.Constraint("Symmetric", 19, 3, 37, 3, -2),
    Sketcher.Constraint("Symmetric", 18, 3, 38, 3, -2),
    Sketcher.Constraint("Symmetric", 17, 3, 39, 3, -2),
    Sketcher.Constraint("Symmetric", 15, 3, 41, 3, -2),
    Sketcher.Constraint("Symmetric", 13, 3, 43, 3, -2),
    Sketcher.Constraint("Symmetric", 10, 2, 45, 2, -2),
    Sketcher.Constraint("Symmetric", 6, 2, 49, 2, -2),
    Sketcher.Constraint("Symmetric", 66, 2, 69, 2, -2),
    Sketcher.Constraint("Perpendicular", 6, 10),
    Sketcher.Constraint("Parallel", 10, 26),
    Sketcher.Constraint("Perpendicular", 26, 30),
    Sketcher.Constraint("Horizontal", 19, 3, 21, 3),
    Sketcher.Constraint("Horizontal", 3, 3, 53, 3),
    Sketcher.Constraint("Horizontal", 37, 3, 19, 2),
    Sketcher.Constraint("Horizontal", 20, 2, 21, 2),
    Sketcher.Constraint("Horizontal", 34, 2, 35, 2),
    Sketcher.Constraint("Horizontal", 77, 3, 59, 2),
    Sketcher.Constraint("Horizontal", 74, 2, 75, 2),
    Sketcher.Constraint("Vertical", 15, 3, 17, 3),
    Sketcher.Constraint("Vertical", 33, 3, 63, 3),
    Sketcher.Constraint("Vertical", 23, 3, 73, 3),
    Sketcher.Constraint("Vertical", 79, 3, 0, 2),
    Sketcher.Constraint("Vertical", 0, 2, 1, 2),
    Sketcher.Constraint("Vertical", 14, 2, 15, 2),
    Sketcher.Constraint("Vertical", 57, 3, 39, 2),
    Sketcher.Constraint("Vertical", 54, 2, 55, 2),
    Sketcher.Constraint("Equal", 76, 0),
    Sketcher.Constraint("Equal", 74, 2),
    Sketcher.Constraint("Equal", 72, 4),
    Sketcher.Constraint("Equal", 68, 8),
    Sketcher.Constraint("Equal", 10, 26),
    Sketcher.Constraint("Radius", 1, Q("0.02 in")),
    Sketcher.Constraint("Radius", 5, Q("0.04 in")),
    Sketcher.Constraint("Diameter", 80, Q("0.205 in")),
    Sketcher.Constraint("Radius", 7, Q("0.125 in")),
    Sketcher.Constraint("Radius", 18, Q("0.083 in")),
    Sketcher.Constraint("DistanceX", 1, 3, -1, 1, Q("0.5 in")),
    Sketcher.Constraint("DistanceY", -1, 1, 19, 3, Q("0.5 in")),
    Sketcher.Constraint("Radius", 3, Q("0.0435 in")),
    Sketcher.Constraint("DistanceY", 3, 3, -1, 1, Q("0.171 in")),
    Sketcher.Constraint("DistanceX", 7, 3, -1, 1, Q("0.302 in")),
    Sketcher.Constraint("DistanceY", -1, 1, 17, 3, Q("0.396 in")),
    Sketcher.Constraint("DistanceX", 18, 3, -1, 1, Q("0.417 in")),
    Sketcher.Constraint("DistanceY", -1, 1, 18, 3, Q("0.417 in")),
    Sketcher.Constraint("DistanceX", 20, 1, 20, 2, 3.217316),
    Sketcher.Constraint("DistanceX", 24, 2, 24, 1, 2.131394),
])
sketch1.setExpression("Constraints[197]", "Params.sketch1_radius")
sketch1.setExpression("Constraints[198]", "Params.sketch1_radius2")
sketch1.setExpression("Constraints[199]", "Params.sketch1_diameter")
sketch1.setExpression("Constraints[200]", "Params.sketch1_radius3")
sketch1.setExpression("Constraints[201]", "Params.sketch1_radius4")
pad1 = doc.addObject("PartDesign::Pad", "Pad")
body.addObject(pad1)
pad1.Profile = sketch1
pad1.setExpression("Length", "Params.pad1_length")

doc.recompute()
